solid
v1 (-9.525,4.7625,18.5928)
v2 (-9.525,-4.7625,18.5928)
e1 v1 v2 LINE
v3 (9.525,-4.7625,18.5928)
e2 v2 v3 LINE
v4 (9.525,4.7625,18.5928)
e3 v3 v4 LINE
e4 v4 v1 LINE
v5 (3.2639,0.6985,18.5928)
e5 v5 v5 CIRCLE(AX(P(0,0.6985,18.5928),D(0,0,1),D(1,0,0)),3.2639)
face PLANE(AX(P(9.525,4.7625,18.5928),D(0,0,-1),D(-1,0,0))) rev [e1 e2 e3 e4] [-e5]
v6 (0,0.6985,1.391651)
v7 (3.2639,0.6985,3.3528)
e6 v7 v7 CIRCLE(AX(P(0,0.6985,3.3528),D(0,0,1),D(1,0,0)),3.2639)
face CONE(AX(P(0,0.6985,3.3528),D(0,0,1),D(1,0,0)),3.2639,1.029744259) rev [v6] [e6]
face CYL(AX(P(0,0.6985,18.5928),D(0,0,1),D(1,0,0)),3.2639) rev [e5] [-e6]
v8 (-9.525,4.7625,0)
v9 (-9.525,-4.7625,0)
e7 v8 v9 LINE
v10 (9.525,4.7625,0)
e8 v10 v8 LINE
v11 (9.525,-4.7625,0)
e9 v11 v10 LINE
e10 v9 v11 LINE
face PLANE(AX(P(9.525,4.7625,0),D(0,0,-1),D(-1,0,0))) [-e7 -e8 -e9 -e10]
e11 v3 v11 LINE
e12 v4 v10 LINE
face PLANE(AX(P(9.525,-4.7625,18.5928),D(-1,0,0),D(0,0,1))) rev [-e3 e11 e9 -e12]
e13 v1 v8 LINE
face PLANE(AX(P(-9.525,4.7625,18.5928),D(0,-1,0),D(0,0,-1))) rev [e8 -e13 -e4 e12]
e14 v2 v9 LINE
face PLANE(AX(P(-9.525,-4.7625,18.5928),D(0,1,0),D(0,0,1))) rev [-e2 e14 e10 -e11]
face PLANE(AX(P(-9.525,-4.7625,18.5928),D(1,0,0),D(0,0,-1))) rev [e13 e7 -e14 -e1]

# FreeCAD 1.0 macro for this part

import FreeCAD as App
import Part
import Sketcher
Q = App.Units.Quantity


def add_polygon(sketch, points):
    """Adds a closed chain of lines whose ends are joined by coincident constraints."""
    first, n = sketch.GeometryCount, len(points)
    for a, b in zip(points, points[1:] + points[:1]):
        sketch.addGeometry(Part.LineSegment(App.Vector(*a, 0), App.Vector(*b, 0)), False)
    for i in range(n):
        sketch.addConstraint(Sketcher.Constraint("Coincident", first + i, 2, first + (i + 1) % n, 1))

doc = App.newDocument("Part")
body = doc.addObject("PartDesign::Body", "Body")

sketch1 = body.newObject("Sketcher::SketchObject", "Sketch")
sketch1.AttachmentSupport = (doc.getObject("XY_Plane"), [""])
sketch1.MapMode = "FlatFace"
add_polygon(sketch1, [(-10, 5), (-10, -5), (10, -5), (10, 5)])
sketch1.addConstraint([
    Sketcher.Constraint("Vertical", 0),
    Sketcher.Constraint("Horizontal", 1),
    Sketcher.Constraint("Vertical", 2),
    Sketcher.Constraint("Horizontal", 3),
    Sketcher.Constraint("Symmetric", 0, 2, 2, 2, -1, 1),
    Sketcher.Constraint("DistanceX", 1, 1, 1, 2, Q("0.75 in")),
    Sketcher.Constraint("DistanceY", 0, 2, 0, 1, Q("0.375 in")),
])
pad1 = body.newObject("PartDesign::Pad", "Pad")
pad1.Profile = sketch1
pad1.Length = Q("0.732 in")

sketch2 = body.newObject("Sketcher::SketchObject", "Sketch001")
sketch2.AttachmentSupport = (doc.getObject("XY_Plane"), [""])
sketch2.MapMode = "FlatFace"
sketch2.AttachmentOffset = App.Placement(App.Vector(0, 0, 0.732 * 25.4), App.Rotation())
sketch2.addGeometry(Part.Circle(App.Vector(0, 0.7, 0), App.Vector(0, 0, 1), 3.3), False)
sketch2.addConstraint([
    Sketcher.Constraint("PointOnObject", 0, 3, -2),
    Sketcher.Constraint("Diameter", 0, Q("0.257 in")),
    Sketcher.Constraint("DistanceY", -1, 1, 0, 3, Q("0.0275 in")),
])
doc.recompute()
hole = body.newObject("PartDesign::Hole", "Hole")
hole.Profile = sketch2
hole.ThreadType = "None"
hole.Diameter = Q("0.257 in")
hole.DepthType = "Dimension"
hole.Depth = Q("0.6 in")
hole.DrillPoint = "Angled"
hole.DrillPointAngle = 118

doc.recompute()
